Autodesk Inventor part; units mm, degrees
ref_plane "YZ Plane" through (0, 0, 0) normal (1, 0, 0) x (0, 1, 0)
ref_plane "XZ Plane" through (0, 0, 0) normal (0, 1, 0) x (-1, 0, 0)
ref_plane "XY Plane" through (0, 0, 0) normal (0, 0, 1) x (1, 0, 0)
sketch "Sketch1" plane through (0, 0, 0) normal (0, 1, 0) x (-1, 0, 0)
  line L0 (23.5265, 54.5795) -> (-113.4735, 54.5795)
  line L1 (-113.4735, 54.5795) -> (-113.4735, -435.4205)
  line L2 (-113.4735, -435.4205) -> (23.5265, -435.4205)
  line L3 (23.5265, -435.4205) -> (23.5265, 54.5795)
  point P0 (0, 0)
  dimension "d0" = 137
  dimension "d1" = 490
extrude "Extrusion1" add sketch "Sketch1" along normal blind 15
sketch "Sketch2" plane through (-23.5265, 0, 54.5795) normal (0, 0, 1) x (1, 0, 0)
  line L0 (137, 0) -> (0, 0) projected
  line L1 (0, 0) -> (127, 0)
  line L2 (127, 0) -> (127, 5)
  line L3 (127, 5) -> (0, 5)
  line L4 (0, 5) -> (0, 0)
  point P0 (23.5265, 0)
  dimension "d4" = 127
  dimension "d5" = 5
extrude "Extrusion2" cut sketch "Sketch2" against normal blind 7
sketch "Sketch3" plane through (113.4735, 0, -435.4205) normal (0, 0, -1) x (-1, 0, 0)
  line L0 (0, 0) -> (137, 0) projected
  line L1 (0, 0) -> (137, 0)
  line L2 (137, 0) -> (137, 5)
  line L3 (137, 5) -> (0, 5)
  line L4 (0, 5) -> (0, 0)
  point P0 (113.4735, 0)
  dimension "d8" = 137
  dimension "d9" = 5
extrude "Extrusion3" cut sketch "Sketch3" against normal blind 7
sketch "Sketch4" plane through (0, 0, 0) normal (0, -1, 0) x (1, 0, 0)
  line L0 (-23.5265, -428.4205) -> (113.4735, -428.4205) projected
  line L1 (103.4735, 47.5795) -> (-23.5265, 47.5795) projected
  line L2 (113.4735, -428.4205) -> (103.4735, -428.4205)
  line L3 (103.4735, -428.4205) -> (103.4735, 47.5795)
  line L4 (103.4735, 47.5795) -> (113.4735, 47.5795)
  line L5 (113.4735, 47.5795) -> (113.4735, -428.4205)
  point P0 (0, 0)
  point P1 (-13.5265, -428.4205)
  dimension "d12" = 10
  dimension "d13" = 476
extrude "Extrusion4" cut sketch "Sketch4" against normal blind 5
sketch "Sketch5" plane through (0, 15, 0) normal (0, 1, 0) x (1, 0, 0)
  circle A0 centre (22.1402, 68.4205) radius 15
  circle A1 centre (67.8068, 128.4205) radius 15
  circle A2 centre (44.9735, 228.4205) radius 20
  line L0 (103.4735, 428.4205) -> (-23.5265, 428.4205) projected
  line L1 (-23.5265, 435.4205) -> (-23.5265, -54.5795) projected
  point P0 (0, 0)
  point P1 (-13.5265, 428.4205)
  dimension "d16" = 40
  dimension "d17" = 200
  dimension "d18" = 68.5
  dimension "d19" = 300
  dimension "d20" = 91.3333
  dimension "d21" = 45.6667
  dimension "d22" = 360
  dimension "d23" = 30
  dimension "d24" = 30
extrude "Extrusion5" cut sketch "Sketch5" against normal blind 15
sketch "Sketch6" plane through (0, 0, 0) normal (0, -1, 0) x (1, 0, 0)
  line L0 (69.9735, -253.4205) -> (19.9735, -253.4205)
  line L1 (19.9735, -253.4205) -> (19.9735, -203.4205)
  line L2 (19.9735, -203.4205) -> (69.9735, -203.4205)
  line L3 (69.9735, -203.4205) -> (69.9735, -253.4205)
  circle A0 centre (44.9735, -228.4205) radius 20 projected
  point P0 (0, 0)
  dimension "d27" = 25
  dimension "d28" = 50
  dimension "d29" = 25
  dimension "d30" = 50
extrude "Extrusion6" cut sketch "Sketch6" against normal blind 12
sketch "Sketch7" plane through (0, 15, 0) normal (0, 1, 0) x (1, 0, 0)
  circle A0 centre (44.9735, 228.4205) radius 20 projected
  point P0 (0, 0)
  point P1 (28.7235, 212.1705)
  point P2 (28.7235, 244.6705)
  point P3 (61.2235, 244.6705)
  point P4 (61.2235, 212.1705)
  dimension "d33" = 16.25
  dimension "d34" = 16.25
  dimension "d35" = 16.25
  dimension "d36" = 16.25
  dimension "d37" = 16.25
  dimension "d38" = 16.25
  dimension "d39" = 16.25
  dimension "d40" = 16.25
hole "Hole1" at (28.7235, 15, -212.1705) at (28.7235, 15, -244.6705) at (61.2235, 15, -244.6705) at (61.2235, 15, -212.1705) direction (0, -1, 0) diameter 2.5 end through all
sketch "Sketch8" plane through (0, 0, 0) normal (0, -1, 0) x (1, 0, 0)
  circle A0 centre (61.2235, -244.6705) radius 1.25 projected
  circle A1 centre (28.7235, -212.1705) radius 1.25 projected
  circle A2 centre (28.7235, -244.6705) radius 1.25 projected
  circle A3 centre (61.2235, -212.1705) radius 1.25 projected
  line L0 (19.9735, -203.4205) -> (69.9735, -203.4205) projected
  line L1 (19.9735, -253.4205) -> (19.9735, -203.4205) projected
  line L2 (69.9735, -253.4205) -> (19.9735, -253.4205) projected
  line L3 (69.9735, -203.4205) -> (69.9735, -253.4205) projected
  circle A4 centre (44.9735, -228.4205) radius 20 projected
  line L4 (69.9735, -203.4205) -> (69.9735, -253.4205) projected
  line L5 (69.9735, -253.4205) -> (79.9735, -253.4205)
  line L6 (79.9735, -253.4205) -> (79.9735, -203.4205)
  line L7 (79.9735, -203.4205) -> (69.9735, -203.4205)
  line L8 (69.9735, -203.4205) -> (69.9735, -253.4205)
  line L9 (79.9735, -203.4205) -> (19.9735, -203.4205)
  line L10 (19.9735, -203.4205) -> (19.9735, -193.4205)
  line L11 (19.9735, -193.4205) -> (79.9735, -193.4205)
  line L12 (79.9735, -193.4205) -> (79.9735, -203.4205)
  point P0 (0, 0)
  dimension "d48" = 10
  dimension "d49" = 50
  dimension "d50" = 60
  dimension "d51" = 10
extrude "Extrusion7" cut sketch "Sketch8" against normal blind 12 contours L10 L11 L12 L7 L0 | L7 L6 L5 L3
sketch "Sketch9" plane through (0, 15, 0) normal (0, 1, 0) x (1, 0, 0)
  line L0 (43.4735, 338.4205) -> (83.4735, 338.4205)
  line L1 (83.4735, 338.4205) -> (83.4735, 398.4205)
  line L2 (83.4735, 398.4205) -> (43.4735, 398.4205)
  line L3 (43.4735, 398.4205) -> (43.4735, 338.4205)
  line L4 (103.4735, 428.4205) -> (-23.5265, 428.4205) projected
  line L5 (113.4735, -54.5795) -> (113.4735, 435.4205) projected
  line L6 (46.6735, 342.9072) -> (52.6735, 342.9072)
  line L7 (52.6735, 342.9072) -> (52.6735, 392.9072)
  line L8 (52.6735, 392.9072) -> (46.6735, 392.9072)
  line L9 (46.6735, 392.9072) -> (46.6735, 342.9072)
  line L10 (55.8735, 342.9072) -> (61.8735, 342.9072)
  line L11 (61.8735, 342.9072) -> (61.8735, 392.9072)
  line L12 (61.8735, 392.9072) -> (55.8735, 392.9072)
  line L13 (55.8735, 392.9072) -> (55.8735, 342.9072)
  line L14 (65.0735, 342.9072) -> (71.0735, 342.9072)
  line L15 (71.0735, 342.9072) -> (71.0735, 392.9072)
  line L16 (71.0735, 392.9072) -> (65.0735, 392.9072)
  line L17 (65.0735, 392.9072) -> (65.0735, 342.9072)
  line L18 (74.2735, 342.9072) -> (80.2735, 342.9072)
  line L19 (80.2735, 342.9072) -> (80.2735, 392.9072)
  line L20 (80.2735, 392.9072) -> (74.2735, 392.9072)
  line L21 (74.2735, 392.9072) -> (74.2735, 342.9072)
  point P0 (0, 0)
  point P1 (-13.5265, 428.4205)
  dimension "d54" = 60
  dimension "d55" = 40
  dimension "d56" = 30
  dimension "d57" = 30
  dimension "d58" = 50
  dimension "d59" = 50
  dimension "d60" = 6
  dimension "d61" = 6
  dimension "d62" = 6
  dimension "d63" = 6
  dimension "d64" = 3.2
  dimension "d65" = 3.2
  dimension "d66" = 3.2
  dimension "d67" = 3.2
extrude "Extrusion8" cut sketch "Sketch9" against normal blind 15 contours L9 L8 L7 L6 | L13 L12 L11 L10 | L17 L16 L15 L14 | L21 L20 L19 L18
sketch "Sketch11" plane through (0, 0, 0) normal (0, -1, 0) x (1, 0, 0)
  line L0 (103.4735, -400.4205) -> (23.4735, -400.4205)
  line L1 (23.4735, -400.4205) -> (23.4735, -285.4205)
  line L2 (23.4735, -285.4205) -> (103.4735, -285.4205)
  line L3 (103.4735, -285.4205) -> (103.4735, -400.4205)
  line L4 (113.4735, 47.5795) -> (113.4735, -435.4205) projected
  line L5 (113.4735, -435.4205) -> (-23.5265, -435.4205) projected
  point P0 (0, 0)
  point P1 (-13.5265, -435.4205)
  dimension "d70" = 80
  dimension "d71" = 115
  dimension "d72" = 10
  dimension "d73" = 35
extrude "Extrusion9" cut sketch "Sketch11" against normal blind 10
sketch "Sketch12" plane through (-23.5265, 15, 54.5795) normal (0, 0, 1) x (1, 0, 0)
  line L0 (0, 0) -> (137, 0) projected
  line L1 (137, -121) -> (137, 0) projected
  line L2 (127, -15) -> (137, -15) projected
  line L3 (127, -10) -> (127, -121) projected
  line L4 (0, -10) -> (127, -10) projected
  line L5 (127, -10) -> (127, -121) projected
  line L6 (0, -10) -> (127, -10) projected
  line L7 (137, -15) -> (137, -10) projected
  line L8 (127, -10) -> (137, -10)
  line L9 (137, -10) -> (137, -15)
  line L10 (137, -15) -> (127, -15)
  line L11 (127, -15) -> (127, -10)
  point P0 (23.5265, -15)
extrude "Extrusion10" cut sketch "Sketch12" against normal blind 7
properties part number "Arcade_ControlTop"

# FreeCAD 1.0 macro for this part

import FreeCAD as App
import Part
import Sketcher

V = App.Vector
Q = App.Units.Quantity

doc = App.newDocument("Part")
body = doc.addObject("PartDesign::Body", "Body")

# Sketch on XZ plane
sketch1 = body.newObject("Sketcher::SketchObject", "Sketch")
sketch1.AttachmentSupport = (doc.getObject("XZ_Plane"), [""])
sketch1.MapMode = "FlatFace"
sketch1.addGeometry([
    Part.LineSegment(V(-24, -435, 0), V(-24, 55, 0)),
    Part.LineSegment(V(-24, 55, 0), V(113, 55, 0)),
    Part.LineSegment(V(113, 55, 0), V(113, -435, 0)),
    Part.LineSegment(V(113, -435, 0), V(-24, -435, 0)),
], False)
sketch1.addConstraint([
    Sketcher.Constraint("Coincident", 0, 2, 1, 1),
    Sketcher.Constraint("Coincident", 1, 2, 2, 1),
    Sketcher.Constraint("Coincident", 2, 2, 3, 1),
    Sketcher.Constraint("Coincident", 3, 2, 0, 1),
    Sketcher.Constraint("Vertical", 0),
    Sketcher.Constraint("Horizontal", 1),
    Sketcher.Constraint("Vertical", 2),
    Sketcher.Constraint("Horizontal", 3),
    Sketcher.Constraint("DistanceX", 1, 1, 1, 2, Q("137 mm")),
    Sketcher.Constraint("DistanceY", 0, 1, 0, 2, Q("490 mm")),
    Sketcher.Constraint("DistanceX", 0, 2, -1, 1, Q("23.5265 mm")),
    Sketcher.Constraint("DistanceY", -1, 1, 0, 2, Q("54.5795 mm")),
])
pad1 = body.newObject("PartDesign::Pad", "Pad")
pad1.Profile = sketch1
pad1.Length = 15
pad1.Reversed = True

# Sketch on XY plane
sketch2 = body.newObject("Sketcher::SketchObject", "Sketch001")
sketch2.AttachmentSupport = (doc.getObject("XY_Plane"), [""])
sketch2.MapMode = "FlatFace"
sketch2.AttachmentOffset = App.Placement(V(0, 0, 54.5795), App.Rotation())
sketch2.addGeometry([
    Part.LineSegment(V(-24, 0, 0), V(103, 0, 0)),
    Part.LineSegment(V(103, 0, 0), V(103, 5, 0)),
    Part.LineSegment(V(103, 5, 0), V(-24, 5, 0)),
    Part.LineSegment(V(-24, 5, 0), V(-24, 0, 0)),
], False)
sketch2.addConstraint([
    Sketcher.Constraint("Coincident", 0, 2, 1, 1),
    Sketcher.Constraint("Coincident", 1, 2, 2, 1),
    Sketcher.Constraint("Coincident", 2, 2, 3, 1),
    Sketcher.Constraint("Coincident", 3, 2, 0, 1),
    Sketcher.Constraint("Horizontal", 0),
    Sketcher.Constraint("Vertical", 1),
    Sketcher.Constraint("Horizontal", 2),
    Sketcher.Constraint("Vertical", 3),
    Sketcher.Constraint("PointOnObject", 0, 2, -1),
    Sketcher.Constraint("DistanceX", 0, 1, 0, 2, Q("127 mm")),
    Sketcher.Constraint("DistanceY", 1, 1, 1, 2, Q("5 mm")),
    Sketcher.Constraint("DistanceX", -1, 1, 0, 2, Q("103.4735 mm")),
])
pocket1 = body.newObject("PartDesign::Pocket", "Pocket")
pocket1.Profile = sketch2
pocket1.Length = 7

# Sketch on XY plane
sketch3 = body.newObject("Sketcher::SketchObject", "Sketch002")
sketch3.AttachmentSupport = (doc.getObject("XY_Plane"), [""])
sketch3.MapMode = "FlatFace"
sketch3.AttachmentOffset = App.Placement(V(0, 0, -435.4205), App.Rotation())
sketch3.addGeometry([
    Part.LineSegment(V(113, 5, 0), V(113, 0, 0)),
    Part.LineSegment(V(113, 0, 0), V(-24, 0, 0)),
    Part.LineSegment(V(-24, 0, 0), V(-24, 5, 0)),
    Part.LineSegment(V(-24, 5, 0), V(113, 5, 0)),
], False)
sketch3.addConstraint([
    Sketcher.Constraint("Coincident", 0, 2, 1, 1),
    Sketcher.Constraint("Coincident", 1, 2, 2, 1),
    Sketcher.Constraint("Coincident", 2, 2, 3, 1),
    Sketcher.Constraint("Coincident", 3, 2, 0, 1),
    Sketcher.Constraint("Vertical", 0),
    Sketcher.Constraint("Horizontal", 1),
    Sketcher.Constraint("Vertical", 2),
    Sketcher.Constraint("Horizontal", 3),
    Sketcher.Constraint("PointOnObject", 0, 2, -1),
    Sketcher.Constraint("DistanceX", 1, 2, 1, 1, Q("137 mm")),
    Sketcher.Constraint("DistanceY", 0, 2, 0, 1, Q("5 mm")),
    Sketcher.Constraint("DistanceX", -1, 1, 0, 2, Q("113.4735 mm")),
])
pocket2 = body.newObject("PartDesign::Pocket", "Pocket001")
pocket2.Profile = sketch3
pocket2.Length = 7
pocket2.Reversed = True

# Sketch on XZ plane
sketch4 = body.newObject("Sketcher::SketchObject", "Sketch003")
sketch4.AttachmentSupport = (doc.getObject("XZ_Plane"), [""])
sketch4.MapMode = "FlatFace"
sketch4.addGeometry([
    Part.LineSegment(V(103, 48, 0), V(103, -428, 0)),
    Part.LineSegment(V(103, -428, 0), V(113, -428, 0)),
    Part.LineSegment(V(113, -428, 0), V(113, 48, 0)),
    Part.LineSegment(V(113, 48, 0), V(103, 48, 0)),
], False)
sketch4.addConstraint([
    Sketcher.Constraint("Coincident", 0, 2, 1, 1),
    Sketcher.Constraint("Coincident", 1, 2, 2, 1),
    Sketcher.Constraint("Coincident", 2, 2, 3, 1),
    Sketcher.Constraint("Coincident", 3, 2, 0, 1),
    Sketcher.Constraint("Vertical", 0),
    Sketcher.Constraint("Horizontal", 1),
    Sketcher.Constraint("Vertical", 2),
    Sketcher.Constraint("Horizontal", 3),
    Sketcher.Constraint("DistanceX", 1, 1, 1, 2, Q("10 mm")),
    Sketcher.Constraint("DistanceY", 0, 2, 0, 1, Q("476 mm")),
    Sketcher.Constraint("DistanceX", -1, 1, 0, 2, Q("103.4735 mm")),
    Sketcher.Constraint("DistanceY", 0, 2, -1, 1, Q("428.4205 mm")),
])
pocket3 = body.newObject("PartDesign::Pocket", "Pocket002")
pocket3.Profile = sketch4
pocket3.Length = 5

# Sketch on XZ plane
sketch5 = body.newObject("Sketcher::SketchObject", "Sketch004")
sketch5.AttachmentSupport = (doc.getObject("XZ_Plane"), [""])
sketch5.MapMode = "FlatFace"
sketch5.AttachmentOffset = App.Placement(V(0, 0, -15), App.Rotation())
sketch5.addGeometry([
    Part.Circle(V(22, -68, 0), V(0, 0, 1), 15),
    Part.Circle(V(68, -128, 0), V(0, 0, 1), 15),
    Part.Circle(V(45, -228, 0), V(0, 0, 1), 20),
], False)
sketch5.addConstraint([
    Sketcher.Constraint("Equal", 0, 1),
    Sketcher.Constraint("Diameter", 0, Q("30 mm")),
    Sketcher.Constraint("Diameter", 2, Q("40 mm")),
    Sketcher.Constraint("DistanceY", 1, 3, 0, 3, Q("60 mm")),
    Sketcher.Constraint("DistanceY", 2, 3, 1, 3, Q("100 mm")),
    Sketcher.Constraint("DistanceX", 0, 3, 1, 3, Q("45.6666 mm")),
    Sketcher.Constraint("DistanceX", -1, 1, 0, 3, Q("22.1402 mm")),
    Sketcher.Constraint("DistanceY", 0, 3, -1, 1, Q("68.4205 mm")),
    Sketcher.Constraint("DistanceX", -1, 1, 2, 3, Q("44.9735 mm")),
])
pocket4 = body.newObject("PartDesign::Pocket", "Pocket003")
pocket4.Profile = sketch5
pocket4.Length = 15
pocket4.Reversed = True

# Sketch on XZ plane
sketch6 = body.newObject("Sketcher::SketchObject", "Sketch005")
sketch6.AttachmentSupport = (doc.getObject("XZ_Plane"), [""])
sketch6.MapMode = "FlatFace"
sketch6.addGeometry([
    Part.LineSegment(V(20, -253, 0), V(70, -253, 0)),  # 0
    Part.LineSegment(V(70, -253, 0), V(70, -203, 0)),  # 1
    Part.LineSegment(V(70, -203, 0), V(20, -203, 0)),  # 2
    Part.LineSegment(V(20, -203, 0), V(20, -253, 0)),  # 3
    Part.Circle(V(45, -228, 0), V(0, 0, 1), 20),  # 4
], False)
sketch6.addConstraint([
    Sketcher.Constraint("Coincident", 0, 2, 1, 1),
    Sketcher.Constraint("Coincident", 1, 2, 2, 1),
    Sketcher.Constraint("Coincident", 2, 2, 3, 1),
    Sketcher.Constraint("Coincident", 3, 2, 0, 1),
    Sketcher.Constraint("Horizontal", 0),
    Sketcher.Constraint("Vertical", 1),
    Sketcher.Constraint("Horizontal", 2),
    Sketcher.Constraint("Vertical", 3),
    Sketcher.Constraint("Equal", 2, 1),
    Sketcher.Constraint("DistanceX", 0, 1, 0, 2, Q("50 mm")),
    Sketcher.Constraint("Diameter", 4, Q("40 mm")),
    Sketcher.Constraint("DistanceX", 4, 3, 0, 2, Q("25 mm")),
    Sketcher.Constraint("DistanceY", 0, 2, 4, 3, Q("25 mm")),
    Sketcher.Constraint("DistanceX", -1, 1, 4, 3, Q("44.9735 mm")),
    Sketcher.Constraint("DistanceY", 4, 3, -1, 1, Q("228.4205 mm")),
])
pocket5 = body.newObject("PartDesign::Pocket", "Pocket004")
pocket5.Profile = sketch6
pocket5.Length = 12

# Sketch on XZ plane
sketch7 = body.newObject("Sketcher::SketchObject", "Sketch006")
sketch7.AttachmentSupport = (doc.getObject("XZ_Plane"), [""])
sketch7.MapMode = "FlatFace"
sketch7.AttachmentOffset = App.Placement(V(0, 0, -15), App.Rotation())
sketch7.addGeometry([
    Part.Circle(V(28.7, -212.2, 0), V(0, 0, 1), 1.2),
    Part.Circle(V(28.7, -244.7, 0), V(0, 0, 1), 1.2),
    Part.Circle(V(61.2, -244.7, 0), V(0, 0, 1), 1.2),
    Part.Circle(V(61.2, -212.2, 0), V(0, 0, 1), 1.2),
], False)
sketch7.addConstraint([
    Sketcher.Constraint("Equal", 0, 1),
    Sketcher.Constraint("Equal", 1, 2),
    Sketcher.Constraint("Equal", 2, 3),
    Sketcher.Constraint("Horizontal", 1, 3, 2, 3),
    Sketcher.Constraint("Horizontal", 0, 3, 3, 3),
    Sketcher.Constraint("Vertical", 0, 3, 1, 3),
    Sketcher.Constraint("Vertical", 2, 3, 3, 3),
    Sketcher.Constraint("Diameter", 0, Q("2.5 mm")),
    Sketcher.Constraint("DistanceY", 1, 3, 0, 3, Q("32.5 mm")),
    Sketcher.Constraint("DistanceX", 1, 3, 2, 3, Q("32.5 mm")),
    Sketcher.Constraint("DistanceX", -1, 1, 0, 3, Q("28.7235 mm")),
    Sketcher.Constraint("DistanceY", 0, 3, -1, 1, Q("212.1705 mm")),
])
doc.recompute()
hole = body.newObject("PartDesign::Hole", "Hole")
hole.Profile = sketch7
hole.ThreadType = "None"
hole.Diameter = 2.5
hole.DepthType = "ThroughAll"
hole.Reversed = True

# Sketch on XZ plane
sketch8 = body.newObject("Sketcher::SketchObject", "Sketch007")
sketch8.AttachmentSupport = (doc.getObject("XZ_Plane"), [""])
sketch8.MapMode = "FlatFace"
sketch8.addGeometry([
    Part.LineSegment(V(20, -193, 0), V(20, -203, 0)),  # 0
    Part.LineSegment(V(20, -203, 0), V(70, -203, 0)),  # 1
    Part.LineSegment(V(70, -203, 0), V(70, -253, 0)),  # 2
    Part.LineSegment(V(70, -253, 0), V(80, -253, 0)),  # 3
    Part.LineSegment(V(80, -253, 0), V(80, -193, 0)),  # 4
    Part.LineSegment(V(80, -193, 0), V(20, -193, 0)),  # 5
], False)
sketch8.addConstraint([
    Sketcher.Constraint("Coincident", 0, 2, 1, 1),
    Sketcher.Constraint("Coincident", 1, 2, 2, 1),
    Sketcher.Constraint("Coincident", 2, 2, 3, 1),
    Sketcher.Constraint("Coincident", 3, 2, 4, 1),
    Sketcher.Constraint("Coincident", 4, 2, 5, 1),
    Sketcher.Constraint("Coincident", 5, 2, 0, 1),
    Sketcher.Constraint("Vertical", 0),
    Sketcher.Constraint("Horizontal", 1),
    Sketcher.Constraint("Vertical", 2),
    Sketcher.Constraint("Horizontal", 3),
    Sketcher.Constraint("Vertical", 4),
    Sketcher.Constraint("Horizontal", 5),
    Sketcher.Constraint("Equal", 3, 0),
    Sketcher.Constraint("Equal", 1, 2),
    Sketcher.Constraint("DistanceX", 1, 1, 1, 2, Q("50 mm")),
    Sketcher.Constraint("DistanceX", 3, 1, 3, 2, Q("10 mm")),
    Sketcher.Constraint("DistanceX", -1, 1, 0, 2, Q("19.9735 mm")),
    Sketcher.Constraint("DistanceY", 0, 2, -1, 1, Q("203.4205 mm")),
])
pocket6 = body.newObject("PartDesign::Pocket", "Pocket005")
pocket6.Profile = sketch8
pocket6.Length = 12

# Sketch on XZ plane
sketch9 = body.newObject("Sketcher::SketchObject", "Sketch008")
sketch9.AttachmentSupport = (doc.getObject("XZ_Plane"), [""])
sketch9.MapMode = "FlatFace"
sketch9.AttachmentOffset = App.Placement(V(0, 0, -15), App.Rotation())
sketch9.addGeometry([
    Part.LineSegment(V(47, -393, 0), V(47, -343, 0)),  # 0
    Part.LineSegment(V(47, -343, 0), V(53, -343, 0)),  # 1
    Part.LineSegment(V(53, -343, 0), V(53, -393, 0)),  # 2
    Part.LineSegment(V(53, -393, 0), V(47, -393, 0)),  # 3
    Part.LineSegment(V(56, -393, 0), V(56, -343, 0)),  # 4
    Part.LineSegment(V(56, -343, 0), V(62, -343, 0)),  # 5
    Part.LineSegment(V(62, -343, 0), V(62, -393, 0)),  # 6
    Part.LineSegment(V(62, -393, 0), V(56, -393, 0)),  # 7
    Part.LineSegment(V(65, -393, 0), V(65, -343, 0)),  # 8
    Part.LineSegment(V(65, -343, 0), V(71, -343, 0)),  # 9
    Part.LineSegment(V(71, -343, 0), V(71, -393, 0)),  # 10
    Part.LineSegment(V(71, -393, 0), V(65, -393, 0)),  # 11
    Part.LineSegment(V(74, -393, 0), V(74, -343, 0)),  # 12
    Part.LineSegment(V(74, -343, 0), V(80, -343, 0)),  # 13
    Part.LineSegment(V(80, -343, 0), V(80, -393, 0)),  # 14
    Part.LineSegment(V(80, -393, 0), V(74, -393, 0)),  # 15
], False)
sketch9.addConstraint([
    Sketcher.Constraint("Coincident", 0, 2, 1, 1),
    Sketcher.Constraint("Coincident", 1, 2, 2, 1),
    Sketcher.Constraint("Coincident", 2, 2, 3, 1),
    Sketcher.Constraint("Coincident", 3, 2, 0, 1),
    Sketcher.Constraint("Coincident", 4, 2, 5, 1),
    Sketcher.Constraint("Coincident", 5, 2, 6, 1),
    Sketcher.Constraint("Coincident", 6, 2, 7, 1),
    Sketcher.Constraint("Coincident", 7, 2, 4, 1),
    Sketcher.Constraint("Coincident", 8, 2, 9, 1),
    Sketcher.Constraint("Coincident", 9, 2, 10, 1),
    Sketcher.Constraint("Coincident", 10, 2, 11, 1),
    Sketcher.Constraint("Coincident", 11, 2, 8, 1),
    Sketcher.Constraint("Coincident", 12, 2, 13, 1),
    Sketcher.Constraint("Coincident", 13, 2, 14, 1),
    Sketcher.Constraint("Coincident", 14, 2, 15, 1),
    Sketcher.Constraint("Coincident", 15, 2, 12, 1),
    Sketcher.Constraint("Vertical", 0),
    Sketcher.Constraint("Horizontal", 1),
    Sketcher.Constraint("Vertical", 2),
    Sketcher.Constraint("Horizontal", 3),
    Sketcher.Constraint("Vertical", 4),
    Sketcher.Constraint("Horizontal", 5),
    Sketcher.Constraint("Vertical", 6),
    Sketcher.Constraint("Horizontal", 7),
    Sketcher.Constraint("Vertical", 8),
    Sketcher.Constraint("Horizontal", 9),
    Sketcher.Constraint("Vertical", 10),
    Sketcher.Constraint("Horizontal", 11),
    Sketcher.Constraint("Vertical", 12),
    Sketcher.Constraint("Horizontal", 13),
    Sketcher.Constraint("Vertical", 14),
    Sketcher.Constraint("Horizontal", 15),
    Sketcher.Constraint("Horizontal", 1, 2, 4, 2),
    Sketcher.Constraint("Horizontal", 3, 2, 6, 2),
    Sketcher.Constraint("Horizontal", 5, 2, 8, 2),
    Sketcher.Constraint("Horizontal", 7, 2, 10, 2),
    Sketcher.Constraint("Horizontal", 9, 2, 12, 2),
    Sketcher.Constraint("Horizontal", 11, 2, 14, 2),
    Sketcher.Constraint("Equal", 3, 5),
    Sketcher.Constraint("Equal", 7, 9),
    Sketcher.Constraint("Equal", 11, 13),
    Sketcher.Constraint("DistanceX", 1, 1, 1, 2, Q("6 mm")),
    Sketcher.Constraint("DistanceY", 0, 1, 0, 2, Q("50 mm")),
    Sketcher.Constraint("DistanceX", 1, 2, 4, 2, Q("3.2 mm")),
    Sketcher.Constraint("DistanceX", 5, 2, 8, 2, Q("3.2 mm")),
    Sketcher.Constraint("DistanceX", 9, 2, 12, 2, Q("3.2 mm")),
    Sketcher.Constraint("DistanceX", -1, 1, 0, 2, Q("46.6735 mm")),
    Sketcher.Constraint("DistanceY", 0, 2, -1, 1, Q("342.9072 mm")),
])
pocket7 = body.newObject("PartDesign::Pocket", "Pocket006")
pocket7.Profile = sketch9
pocket7.Length = 15
pocket7.Reversed = True

# Sketch on XZ plane
sketch10 = body.newObject("Sketcher::SketchObject", "Sketch009")
sketch10.AttachmentSupport = (doc.getObject("XZ_Plane"), [""])
sketch10.MapMode = "FlatFace"
sketch10.addGeometry([
    Part.LineSegment(V(23, -400, 0), V(103, -400, 0)),
    Part.LineSegment(V(103, -400, 0), V(103, -285, 0)),
    Part.LineSegment(V(103, -285, 0), V(23, -285, 0)),
    Part.LineSegment(V(23, -285, 0), V(23, -400, 0)),
], False)
sketch10.addConstraint([
    Sketcher.Constraint("Coincident", 0, 2, 1, 1),
    Sketcher.Constraint("Coincident", 1, 2, 2, 1),
    Sketcher.Constraint("Coincident", 2, 2, 3, 1),
    Sketcher.Constraint("Coincident", 3, 2, 0, 1),
    Sketcher.Constraint("Horizontal", 0),
    Sketcher.Constraint("Vertical", 1),
    Sketcher.Constraint("Horizontal", 2),
    Sketcher.Constraint("Vertical", 3),
    Sketcher.Constraint("DistanceX", 0, 1, 0, 2, Q("80 mm")),
    Sketcher.Constraint("DistanceY", 1, 1, 1, 2, Q("115 mm")),
    Sketcher.Constraint("DistanceX", -1, 1, 0, 2, Q("103.4735 mm")),
    Sketcher.Constraint("DistanceY", 0, 2, -1, 1, Q("400.4205 mm")),
])
pocket8 = body.newObject("PartDesign::Pocket", "Pocket007")
pocket8.Profile = sketch10
pocket8.Length = 10

# Sketch on XY plane
sketch11 = body.newObject("Sketcher::SketchObject", "Sketch010")
sketch11.AttachmentSupport = (doc.getObject("XY_Plane"), [""])
sketch11.MapMode = "FlatFace"
sketch11.AttachmentOffset = App.Placement(V(0, 0, 54.5795), App.Rotation())
sketch11.addGeometry([
    Part.LineSegment(V(103, 0, 0), V(113, 0, 0)),
    Part.LineSegment(V(113, 0, 0), V(113, 5, 0)),
    Part.LineSegment(V(113, 5, 0), V(103, 5, 0)),
    Part.LineSegment(V(103, 5, 0), V(103, 0, 0)),
], False)
sketch11.addConstraint([
    Sketcher.Constraint("Coincident", 0, 2, 1, 1),
    Sketcher.Constraint("Coincident", 1, 2, 2, 1),
    Sketcher.Constraint("Coincident", 2, 2, 3, 1),
    Sketcher.Constraint("Coincident", 3, 2, 0, 1),
    Sketcher.Constraint("Horizontal", 0),
    Sketcher.Constraint("Vertical", 1),
    Sketcher.Constraint("Horizontal", 2),
    Sketcher.Constraint("Vertical", 3),
    Sketcher.Constraint("PointOnObject", 0, 2, -1),
    Sketcher.Constraint("DistanceX", 0, 1, 0, 2, Q("10 mm")),
    Sketcher.Constraint("DistanceY", 1, 1, 1, 2, Q("5 mm")),
    Sketcher.Constraint("DistanceX", -1, 1, 0, 2, Q("113.4735 mm")),
])
pocket9 = body.newObject("PartDesign::Pocket", "Pocket008")
pocket9.Profile = sketch11
pocket9.Length = 7

doc.recompute()
